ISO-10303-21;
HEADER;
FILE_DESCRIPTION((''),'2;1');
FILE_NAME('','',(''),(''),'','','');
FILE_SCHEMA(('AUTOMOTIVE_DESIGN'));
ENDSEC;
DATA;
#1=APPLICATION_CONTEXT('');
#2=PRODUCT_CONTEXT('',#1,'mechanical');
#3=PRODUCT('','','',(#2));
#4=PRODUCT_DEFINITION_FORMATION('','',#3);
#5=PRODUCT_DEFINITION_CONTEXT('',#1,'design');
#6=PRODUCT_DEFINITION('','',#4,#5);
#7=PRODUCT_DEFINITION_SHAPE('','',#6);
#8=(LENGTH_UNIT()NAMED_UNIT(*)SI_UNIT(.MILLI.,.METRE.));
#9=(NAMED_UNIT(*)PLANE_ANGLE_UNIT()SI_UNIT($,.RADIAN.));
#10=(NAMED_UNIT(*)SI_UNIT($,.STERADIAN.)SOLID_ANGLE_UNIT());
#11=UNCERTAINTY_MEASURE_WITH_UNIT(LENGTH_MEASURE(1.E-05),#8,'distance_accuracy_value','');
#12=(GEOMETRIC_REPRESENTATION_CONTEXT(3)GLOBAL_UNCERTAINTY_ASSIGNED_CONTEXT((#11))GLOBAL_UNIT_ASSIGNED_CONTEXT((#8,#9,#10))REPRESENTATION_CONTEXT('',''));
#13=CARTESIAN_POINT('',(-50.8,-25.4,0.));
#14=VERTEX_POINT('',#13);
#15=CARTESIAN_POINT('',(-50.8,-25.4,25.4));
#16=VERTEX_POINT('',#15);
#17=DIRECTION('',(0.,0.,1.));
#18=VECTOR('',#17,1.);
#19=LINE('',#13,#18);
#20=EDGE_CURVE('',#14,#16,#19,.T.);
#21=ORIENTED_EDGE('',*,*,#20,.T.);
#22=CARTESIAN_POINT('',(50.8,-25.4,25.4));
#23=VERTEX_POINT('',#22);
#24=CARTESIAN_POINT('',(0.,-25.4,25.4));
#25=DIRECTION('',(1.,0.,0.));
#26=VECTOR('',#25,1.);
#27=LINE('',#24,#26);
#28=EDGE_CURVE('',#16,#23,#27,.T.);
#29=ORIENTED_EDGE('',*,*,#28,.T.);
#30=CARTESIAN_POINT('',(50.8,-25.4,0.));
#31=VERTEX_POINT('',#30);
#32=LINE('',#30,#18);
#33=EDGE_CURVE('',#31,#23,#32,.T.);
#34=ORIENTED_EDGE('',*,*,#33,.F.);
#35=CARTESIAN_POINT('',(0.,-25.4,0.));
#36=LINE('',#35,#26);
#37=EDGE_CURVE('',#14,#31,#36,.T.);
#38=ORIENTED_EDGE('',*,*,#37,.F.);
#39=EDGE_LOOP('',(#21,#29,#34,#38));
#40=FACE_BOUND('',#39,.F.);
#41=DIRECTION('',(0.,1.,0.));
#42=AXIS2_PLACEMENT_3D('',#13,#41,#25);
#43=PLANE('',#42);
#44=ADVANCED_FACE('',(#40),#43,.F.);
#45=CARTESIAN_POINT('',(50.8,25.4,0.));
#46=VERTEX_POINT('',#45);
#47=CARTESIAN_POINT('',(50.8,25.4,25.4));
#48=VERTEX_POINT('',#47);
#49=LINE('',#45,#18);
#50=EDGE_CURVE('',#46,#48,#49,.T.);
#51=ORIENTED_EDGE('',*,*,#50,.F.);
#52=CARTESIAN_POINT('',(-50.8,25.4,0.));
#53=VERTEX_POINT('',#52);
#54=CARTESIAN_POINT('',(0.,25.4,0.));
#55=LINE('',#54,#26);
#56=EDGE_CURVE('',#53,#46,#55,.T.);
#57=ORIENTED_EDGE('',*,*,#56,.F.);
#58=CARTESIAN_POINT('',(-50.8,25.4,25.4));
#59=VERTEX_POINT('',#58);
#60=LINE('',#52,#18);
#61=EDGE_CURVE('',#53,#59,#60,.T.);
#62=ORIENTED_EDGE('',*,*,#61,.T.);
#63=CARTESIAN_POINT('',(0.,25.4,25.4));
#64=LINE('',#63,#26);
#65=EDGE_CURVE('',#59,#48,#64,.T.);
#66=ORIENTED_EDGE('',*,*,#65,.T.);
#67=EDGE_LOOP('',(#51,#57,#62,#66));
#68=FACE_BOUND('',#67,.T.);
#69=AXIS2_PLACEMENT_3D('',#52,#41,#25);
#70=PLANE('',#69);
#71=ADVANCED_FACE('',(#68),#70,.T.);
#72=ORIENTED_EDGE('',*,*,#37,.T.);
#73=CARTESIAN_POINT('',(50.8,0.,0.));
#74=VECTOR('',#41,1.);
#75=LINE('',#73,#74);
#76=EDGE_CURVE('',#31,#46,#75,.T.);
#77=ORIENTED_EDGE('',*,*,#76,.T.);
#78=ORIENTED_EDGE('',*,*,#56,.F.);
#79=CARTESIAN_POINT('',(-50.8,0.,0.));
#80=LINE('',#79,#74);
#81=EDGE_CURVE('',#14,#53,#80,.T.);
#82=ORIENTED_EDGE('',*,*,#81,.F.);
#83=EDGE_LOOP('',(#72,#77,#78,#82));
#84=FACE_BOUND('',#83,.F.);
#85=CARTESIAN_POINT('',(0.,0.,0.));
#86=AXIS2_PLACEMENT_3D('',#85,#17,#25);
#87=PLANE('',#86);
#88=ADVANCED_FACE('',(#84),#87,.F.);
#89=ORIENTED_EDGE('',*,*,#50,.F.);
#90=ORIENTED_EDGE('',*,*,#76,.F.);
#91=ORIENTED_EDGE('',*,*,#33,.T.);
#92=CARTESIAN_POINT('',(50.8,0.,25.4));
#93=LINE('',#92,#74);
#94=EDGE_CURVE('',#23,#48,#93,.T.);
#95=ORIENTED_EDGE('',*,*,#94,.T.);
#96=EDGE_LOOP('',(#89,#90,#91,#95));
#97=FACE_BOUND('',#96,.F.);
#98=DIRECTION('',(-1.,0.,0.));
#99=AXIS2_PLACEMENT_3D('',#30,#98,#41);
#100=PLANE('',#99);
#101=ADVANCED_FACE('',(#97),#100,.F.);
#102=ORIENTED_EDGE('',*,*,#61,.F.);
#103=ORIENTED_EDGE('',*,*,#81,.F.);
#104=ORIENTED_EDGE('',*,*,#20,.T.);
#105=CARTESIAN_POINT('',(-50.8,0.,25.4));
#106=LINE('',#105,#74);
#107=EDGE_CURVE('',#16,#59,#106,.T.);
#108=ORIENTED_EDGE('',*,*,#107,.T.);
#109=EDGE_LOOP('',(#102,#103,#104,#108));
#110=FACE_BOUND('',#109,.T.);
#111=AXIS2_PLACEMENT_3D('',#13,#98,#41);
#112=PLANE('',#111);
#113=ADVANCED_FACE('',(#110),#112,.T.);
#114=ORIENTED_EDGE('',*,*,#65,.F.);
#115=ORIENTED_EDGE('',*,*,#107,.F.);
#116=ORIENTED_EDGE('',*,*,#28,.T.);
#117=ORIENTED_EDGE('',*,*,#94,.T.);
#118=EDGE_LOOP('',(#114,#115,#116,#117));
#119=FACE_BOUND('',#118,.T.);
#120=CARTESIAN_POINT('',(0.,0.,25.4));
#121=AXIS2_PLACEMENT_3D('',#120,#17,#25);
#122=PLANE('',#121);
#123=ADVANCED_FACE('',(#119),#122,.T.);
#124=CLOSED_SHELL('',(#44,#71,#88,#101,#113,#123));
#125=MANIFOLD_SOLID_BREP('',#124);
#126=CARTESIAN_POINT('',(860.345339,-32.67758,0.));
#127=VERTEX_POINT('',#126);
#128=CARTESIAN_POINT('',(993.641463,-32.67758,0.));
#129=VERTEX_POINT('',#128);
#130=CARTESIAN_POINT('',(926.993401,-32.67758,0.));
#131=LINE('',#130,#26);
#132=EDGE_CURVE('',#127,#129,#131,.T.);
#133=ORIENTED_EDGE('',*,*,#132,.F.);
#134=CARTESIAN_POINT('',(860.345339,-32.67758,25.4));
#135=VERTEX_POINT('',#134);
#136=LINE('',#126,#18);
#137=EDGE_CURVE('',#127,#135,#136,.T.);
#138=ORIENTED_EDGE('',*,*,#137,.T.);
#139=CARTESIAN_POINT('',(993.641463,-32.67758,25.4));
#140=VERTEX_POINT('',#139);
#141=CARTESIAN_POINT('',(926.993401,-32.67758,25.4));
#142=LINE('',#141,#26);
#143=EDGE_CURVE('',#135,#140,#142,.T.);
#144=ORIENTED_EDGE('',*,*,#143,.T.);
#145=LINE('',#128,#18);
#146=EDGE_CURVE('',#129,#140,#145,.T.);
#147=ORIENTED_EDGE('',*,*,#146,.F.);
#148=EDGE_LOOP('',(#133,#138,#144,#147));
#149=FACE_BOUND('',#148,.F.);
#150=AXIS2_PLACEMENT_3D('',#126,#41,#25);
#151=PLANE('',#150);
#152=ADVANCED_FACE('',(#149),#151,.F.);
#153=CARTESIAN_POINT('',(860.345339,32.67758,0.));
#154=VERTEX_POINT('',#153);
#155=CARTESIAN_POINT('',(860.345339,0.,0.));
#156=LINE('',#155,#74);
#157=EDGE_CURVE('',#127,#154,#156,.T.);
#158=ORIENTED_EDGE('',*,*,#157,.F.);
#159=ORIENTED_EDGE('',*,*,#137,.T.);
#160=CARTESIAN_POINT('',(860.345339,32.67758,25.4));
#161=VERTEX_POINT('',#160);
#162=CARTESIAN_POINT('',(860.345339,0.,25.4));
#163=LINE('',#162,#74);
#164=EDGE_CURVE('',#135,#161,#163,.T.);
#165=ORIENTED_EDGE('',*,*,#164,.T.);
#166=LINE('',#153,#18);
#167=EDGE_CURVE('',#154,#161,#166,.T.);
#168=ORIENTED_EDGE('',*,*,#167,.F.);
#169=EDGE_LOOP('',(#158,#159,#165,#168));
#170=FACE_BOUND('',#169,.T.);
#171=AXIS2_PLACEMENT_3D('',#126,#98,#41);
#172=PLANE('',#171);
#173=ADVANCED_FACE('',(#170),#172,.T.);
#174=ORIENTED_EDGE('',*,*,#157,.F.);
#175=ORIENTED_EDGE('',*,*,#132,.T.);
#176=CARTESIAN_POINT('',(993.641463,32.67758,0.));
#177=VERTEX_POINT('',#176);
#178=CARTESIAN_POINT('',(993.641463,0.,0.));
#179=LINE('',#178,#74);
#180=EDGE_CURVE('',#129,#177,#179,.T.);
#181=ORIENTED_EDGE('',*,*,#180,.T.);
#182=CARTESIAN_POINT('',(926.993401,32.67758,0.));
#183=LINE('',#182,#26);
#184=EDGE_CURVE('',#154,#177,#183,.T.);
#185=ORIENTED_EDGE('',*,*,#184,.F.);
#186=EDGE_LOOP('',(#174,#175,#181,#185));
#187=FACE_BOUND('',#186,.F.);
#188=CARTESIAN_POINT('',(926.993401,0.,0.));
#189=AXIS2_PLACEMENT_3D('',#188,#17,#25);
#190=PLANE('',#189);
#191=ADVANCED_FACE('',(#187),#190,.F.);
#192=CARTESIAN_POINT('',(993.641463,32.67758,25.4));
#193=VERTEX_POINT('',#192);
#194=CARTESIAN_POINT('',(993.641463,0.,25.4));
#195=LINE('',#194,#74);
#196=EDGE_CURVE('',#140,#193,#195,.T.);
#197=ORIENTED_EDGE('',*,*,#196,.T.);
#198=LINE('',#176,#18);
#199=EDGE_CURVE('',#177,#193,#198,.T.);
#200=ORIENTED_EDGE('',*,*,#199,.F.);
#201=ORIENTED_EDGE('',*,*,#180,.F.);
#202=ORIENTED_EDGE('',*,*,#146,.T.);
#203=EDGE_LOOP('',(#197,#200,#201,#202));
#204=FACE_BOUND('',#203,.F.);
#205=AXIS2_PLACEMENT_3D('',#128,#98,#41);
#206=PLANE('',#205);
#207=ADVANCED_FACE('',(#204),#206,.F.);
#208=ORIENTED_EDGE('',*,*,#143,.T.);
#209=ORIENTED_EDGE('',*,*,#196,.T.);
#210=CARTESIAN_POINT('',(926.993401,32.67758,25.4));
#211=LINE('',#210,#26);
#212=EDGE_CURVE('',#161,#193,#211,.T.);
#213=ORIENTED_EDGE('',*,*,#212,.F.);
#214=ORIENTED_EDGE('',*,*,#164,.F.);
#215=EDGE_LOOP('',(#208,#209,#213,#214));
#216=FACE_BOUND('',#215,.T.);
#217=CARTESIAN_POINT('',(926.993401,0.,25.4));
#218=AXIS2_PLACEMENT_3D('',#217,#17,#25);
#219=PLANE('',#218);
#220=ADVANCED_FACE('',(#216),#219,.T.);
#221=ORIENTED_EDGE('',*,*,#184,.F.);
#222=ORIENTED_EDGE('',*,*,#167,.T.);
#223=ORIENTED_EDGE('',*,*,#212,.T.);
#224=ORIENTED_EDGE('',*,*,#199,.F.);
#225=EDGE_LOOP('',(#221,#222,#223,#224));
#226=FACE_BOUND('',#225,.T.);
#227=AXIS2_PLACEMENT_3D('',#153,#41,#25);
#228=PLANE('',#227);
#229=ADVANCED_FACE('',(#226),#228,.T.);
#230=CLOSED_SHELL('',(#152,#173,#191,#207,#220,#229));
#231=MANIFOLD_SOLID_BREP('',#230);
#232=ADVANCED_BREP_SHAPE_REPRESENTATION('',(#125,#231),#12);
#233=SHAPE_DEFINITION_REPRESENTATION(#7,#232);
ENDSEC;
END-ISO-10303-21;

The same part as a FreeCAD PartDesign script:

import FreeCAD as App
import Part
import Sketcher

V = App.Vector
Q = App.Units.Quantity


def add_polygon(sketch, points):
    """Adds a closed chain of lines whose ends are joined by coincident constraints."""
    first, n = sketch.GeometryCount, len(points)
    for a, b in zip(points, points[1:] + points[:1]):
        sketch.addGeometry(Part.LineSegment(App.Vector(*a, 0), App.Vector(*b, 0)), False)
    for i in range(n):
        sketch.addConstraint(Sketcher.Constraint("Coincident", first + i, 2, first + (i + 1) % n, 1))

doc = App.newDocument("Part")
body = doc.addObject("PartDesign::Body", "Body")
body.AllowCompound = True

# Sketch on XY plane
sketch1 = doc.addObject("Sketcher::SketchObject", "Sketch")
body.addObject(sketch1)
sketch1.AttachmentSupport = (doc.XY_Plane, [""])
sketch1.MapMode = "FlatFace"
add_polygon(sketch1, [(860, 33), (860, -33), (994, -33), (994, 33)])  # lines 0-3
add_polygon(sketch1, [(-51, 25), (-51, -25), (51, -25), (51, 25)])  # lines 4-7
sketch1.addConstraint([
    Sketcher.Constraint("Vertical", 0),
    Sketcher.Constraint("Horizontal", 1),
    Sketcher.Constraint("Vertical", 2),
    Sketcher.Constraint("Horizontal", 3),
    Sketcher.Constraint("Vertical", 4),
    Sketcher.Constraint("Horizontal", 5),
    Sketcher.Constraint("Vertical", 6),
    Sketcher.Constraint("Horizontal", 7),
    Sketcher.Constraint("Symmetric", 4, 2, 6, 2, -1, 1),
    Sketcher.Constraint("DistanceX", 5, 1, 5, 2, Q("4 in")),
    Sketcher.Constraint("DistanceY", 4, 2, 4, 1, Q("2 in")),
    Sketcher.Constraint("DistanceY", 0, 2, 0, 1, 65.35516),
    Sketcher.Constraint("DistanceX", 1, 1, 1, 2, 133.296125),
    Sketcher.Constraint("DistanceX", -1, 1, 0, 2, 860.345339),
    Sketcher.Constraint("DistanceY", 0, 2, -1, 1, 32.67758),
])
pad1 = doc.addObject("PartDesign::Pad", "Pad")
body.addObject(pad1)
pad1.Profile = sketch1
pad1.Length = Q("1 in")

doc.recompute()
